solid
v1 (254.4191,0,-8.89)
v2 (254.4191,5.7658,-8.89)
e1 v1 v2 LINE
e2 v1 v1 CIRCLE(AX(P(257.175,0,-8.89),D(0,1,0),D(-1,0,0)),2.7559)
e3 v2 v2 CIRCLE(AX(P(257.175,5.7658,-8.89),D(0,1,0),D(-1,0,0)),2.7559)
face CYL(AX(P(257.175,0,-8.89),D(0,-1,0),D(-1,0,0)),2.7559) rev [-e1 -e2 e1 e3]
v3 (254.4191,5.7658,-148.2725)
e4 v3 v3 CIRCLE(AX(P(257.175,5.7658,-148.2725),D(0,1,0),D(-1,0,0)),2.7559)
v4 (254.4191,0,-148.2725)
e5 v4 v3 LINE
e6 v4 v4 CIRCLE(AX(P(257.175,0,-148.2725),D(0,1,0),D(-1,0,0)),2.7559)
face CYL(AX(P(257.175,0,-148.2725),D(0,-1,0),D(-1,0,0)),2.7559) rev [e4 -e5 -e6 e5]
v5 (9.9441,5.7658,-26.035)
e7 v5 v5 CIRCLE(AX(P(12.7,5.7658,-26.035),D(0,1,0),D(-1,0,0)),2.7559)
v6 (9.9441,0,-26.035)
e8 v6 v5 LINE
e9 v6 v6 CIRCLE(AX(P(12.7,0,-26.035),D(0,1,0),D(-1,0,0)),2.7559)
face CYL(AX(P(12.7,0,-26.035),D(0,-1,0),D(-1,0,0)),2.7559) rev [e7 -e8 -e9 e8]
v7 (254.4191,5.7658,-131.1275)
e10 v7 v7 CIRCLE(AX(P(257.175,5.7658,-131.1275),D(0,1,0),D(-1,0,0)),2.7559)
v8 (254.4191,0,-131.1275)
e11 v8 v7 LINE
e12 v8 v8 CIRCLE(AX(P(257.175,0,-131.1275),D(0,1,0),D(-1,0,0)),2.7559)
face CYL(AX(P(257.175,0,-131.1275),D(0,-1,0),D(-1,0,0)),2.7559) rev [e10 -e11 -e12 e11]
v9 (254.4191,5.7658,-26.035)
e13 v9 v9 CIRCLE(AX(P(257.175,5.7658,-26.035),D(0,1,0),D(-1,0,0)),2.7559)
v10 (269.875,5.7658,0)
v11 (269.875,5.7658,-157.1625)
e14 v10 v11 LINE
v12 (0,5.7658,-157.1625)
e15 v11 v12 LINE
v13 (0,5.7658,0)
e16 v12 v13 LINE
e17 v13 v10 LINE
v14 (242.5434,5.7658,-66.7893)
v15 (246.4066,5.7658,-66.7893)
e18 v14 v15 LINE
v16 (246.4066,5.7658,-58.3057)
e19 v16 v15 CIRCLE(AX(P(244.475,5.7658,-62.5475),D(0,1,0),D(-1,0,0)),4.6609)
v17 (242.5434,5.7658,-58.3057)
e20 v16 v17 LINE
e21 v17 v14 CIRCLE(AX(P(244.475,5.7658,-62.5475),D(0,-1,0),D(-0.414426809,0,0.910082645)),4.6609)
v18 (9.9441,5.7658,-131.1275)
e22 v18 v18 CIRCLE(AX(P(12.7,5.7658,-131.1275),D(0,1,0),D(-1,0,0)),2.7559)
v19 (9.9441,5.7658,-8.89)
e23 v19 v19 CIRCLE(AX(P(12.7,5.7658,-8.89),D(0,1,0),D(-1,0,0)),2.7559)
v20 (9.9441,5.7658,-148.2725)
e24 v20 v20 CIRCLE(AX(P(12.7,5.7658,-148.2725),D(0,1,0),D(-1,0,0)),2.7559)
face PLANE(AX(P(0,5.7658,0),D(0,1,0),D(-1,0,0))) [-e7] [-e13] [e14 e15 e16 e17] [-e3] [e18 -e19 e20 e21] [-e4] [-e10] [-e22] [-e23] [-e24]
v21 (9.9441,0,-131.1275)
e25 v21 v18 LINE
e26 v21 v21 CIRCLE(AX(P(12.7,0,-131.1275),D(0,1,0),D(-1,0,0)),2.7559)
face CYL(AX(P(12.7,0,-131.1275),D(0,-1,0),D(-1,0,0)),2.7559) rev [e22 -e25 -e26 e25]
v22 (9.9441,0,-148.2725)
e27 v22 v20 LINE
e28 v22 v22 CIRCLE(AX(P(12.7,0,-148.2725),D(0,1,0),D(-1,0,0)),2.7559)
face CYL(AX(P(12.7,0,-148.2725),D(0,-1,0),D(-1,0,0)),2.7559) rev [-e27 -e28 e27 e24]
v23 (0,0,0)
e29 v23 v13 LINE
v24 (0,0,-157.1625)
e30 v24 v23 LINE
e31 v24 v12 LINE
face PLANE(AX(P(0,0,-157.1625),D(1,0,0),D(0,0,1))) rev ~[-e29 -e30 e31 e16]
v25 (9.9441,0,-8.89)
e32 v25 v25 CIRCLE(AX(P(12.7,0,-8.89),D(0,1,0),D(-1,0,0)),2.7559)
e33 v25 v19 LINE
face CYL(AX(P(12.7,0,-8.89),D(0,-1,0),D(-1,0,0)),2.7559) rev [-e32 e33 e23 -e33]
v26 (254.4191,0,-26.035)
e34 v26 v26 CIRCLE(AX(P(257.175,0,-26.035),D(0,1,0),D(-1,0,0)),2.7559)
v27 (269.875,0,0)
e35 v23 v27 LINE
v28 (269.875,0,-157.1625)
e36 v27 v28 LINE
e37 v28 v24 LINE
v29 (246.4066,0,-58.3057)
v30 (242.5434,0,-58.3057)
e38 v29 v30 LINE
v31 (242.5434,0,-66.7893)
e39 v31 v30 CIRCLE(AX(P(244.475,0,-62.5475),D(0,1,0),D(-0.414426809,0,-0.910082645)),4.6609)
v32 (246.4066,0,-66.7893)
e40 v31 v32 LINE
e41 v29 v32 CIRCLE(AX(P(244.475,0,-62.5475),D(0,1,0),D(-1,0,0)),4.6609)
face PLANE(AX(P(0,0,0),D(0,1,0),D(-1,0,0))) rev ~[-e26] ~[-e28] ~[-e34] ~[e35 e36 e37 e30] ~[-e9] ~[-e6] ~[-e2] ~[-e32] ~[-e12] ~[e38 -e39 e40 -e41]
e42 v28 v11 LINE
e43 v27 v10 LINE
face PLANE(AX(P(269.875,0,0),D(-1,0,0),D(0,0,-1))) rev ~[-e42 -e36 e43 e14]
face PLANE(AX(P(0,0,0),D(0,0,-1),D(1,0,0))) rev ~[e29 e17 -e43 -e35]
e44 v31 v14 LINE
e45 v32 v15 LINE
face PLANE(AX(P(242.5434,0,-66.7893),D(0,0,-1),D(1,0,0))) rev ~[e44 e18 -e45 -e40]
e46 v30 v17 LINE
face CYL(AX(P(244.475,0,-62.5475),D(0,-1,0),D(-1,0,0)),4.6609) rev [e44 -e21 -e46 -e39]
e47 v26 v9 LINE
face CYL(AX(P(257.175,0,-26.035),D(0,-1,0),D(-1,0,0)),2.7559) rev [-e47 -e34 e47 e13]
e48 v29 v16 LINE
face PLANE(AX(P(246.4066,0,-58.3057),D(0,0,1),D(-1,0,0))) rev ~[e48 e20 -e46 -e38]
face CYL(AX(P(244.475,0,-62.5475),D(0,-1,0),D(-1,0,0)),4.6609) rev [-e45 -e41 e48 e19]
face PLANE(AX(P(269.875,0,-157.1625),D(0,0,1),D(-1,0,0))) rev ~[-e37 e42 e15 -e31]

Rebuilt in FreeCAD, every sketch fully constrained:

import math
import FreeCAD as App
import Part
import Sketcher
from FreeCAD import Vector
Q = App.Units.Quantity


def add_polygon(sketch, points):
    """Adds a closed chain of lines whose ends are joined by coincident constraints."""
    first, n = sketch.GeometryCount, len(points)
    for a, b in zip(points, points[1:] + points[:1]):
        sketch.addGeometry(Part.LineSegment(App.Vector(*a, 0), App.Vector(*b, 0)), False)
    for i in range(n):
        sketch.addConstraint(Sketcher.Constraint("Coincident", first + i, 2, first + (i + 1) % n, 1))

doc = App.newDocument("Part")
body = doc.addObject("PartDesign::Body", "Body")

sketch1 = body.newObject("Sketcher::SketchObject", "Sketch")
sketch1.AttachmentSupport = (doc.getObject("XZ_Plane"), [""])
sketch1.MapMode = "FlatFace"
add_polygon(sketch1, [(0, -157.2), (0, 0), (269.9, 0), (269.9, -157.2)])
sketch1.addGeometry(Part.Circle(Vector(257.2, -148.3, 0), Vector(0, 0, 1), 2.8), False)
sketch1.addGeometry(Part.Circle(Vector(257.2, -131.1, 0), Vector(0, 0, 1), 2.8), False)
sketch1.addGeometry(Part.Circle(Vector(12.7, -148.3, 0), Vector(0, 0, 1), 2.8), False)
sketch1.addGeometry(Part.Circle(Vector(12.7, -131.1, 0), Vector(0, 0, 1), 2.8), False)
sketch1.addGeometry(Part.ArcOfCircle(Part.Circle(Vector(244.5, -62.5, 0), Vector(0, 0, 1), 4.7), math.radians(114), math.radians(246)), False)
sketch1.addGeometry(Part.LineSegment(Vector(242.5, -66.8, 0), Vector(246.4, -66.8, 0)), False)
sketch1.addGeometry(Part.ArcOfCircle(Part.Circle(Vector(244.5, -62.5, 0), Vector(0, 0, 1), 4.7), math.radians(-66), math.radians(66)), False)
sketch1.addGeometry(Part.LineSegment(Vector(246.4, -58.3, 0), Vector(242.5, -58.3, 0)), False)
sketch1.addGeometry(Part.Circle(Vector(257.2, -26, 0), Vector(0, 0, 1), 2.8), False)
sketch1.addGeometry(Part.Circle(Vector(257.2, -8.9, 0), Vector(0, 0, 1), 2.8), False)
sketch1.addGeometry(Part.Circle(Vector(12.7, -26, 0), Vector(0, 0, 1), 2.8), False)
sketch1.addGeometry(Part.Circle(Vector(12.7, -8.9, 0), Vector(0, 0, 1), 2.8), False)
sketch1.addConstraint(Sketcher.Constraint("Coincident", 8, 2, 9, 1))
sketch1.addConstraint(Sketcher.Constraint("Coincident", 9, 2, 10, 1))
sketch1.addConstraint(Sketcher.Constraint("Coincident", 10, 2, 11, 1))
sketch1.addConstraint(Sketcher.Constraint("Coincident", 11, 2, 8, 1))
sketch1.addConstraint(Sketcher.Constraint("Vertical", 0))
sketch1.addConstraint(Sketcher.Constraint("Horizontal", 1))
sketch1.addConstraint(Sketcher.Constraint("Vertical", 2))
sketch1.addConstraint(Sketcher.Constraint("Horizontal", 3))
sketch1.addConstraint(Sketcher.Constraint("Horizontal", 9))
sketch1.addConstraint(Sketcher.Constraint("Horizontal", 11))
sketch1.addConstraint(Sketcher.Constraint("Coincident", 0, 2, -1, 1))
sketch1.addConstraint(Sketcher.Constraint("Coincident", 10, 3, 8, 3))
sketch1.addConstraint(Sketcher.Constraint("Equal", 4, 5))
sketch1.addConstraint(Sketcher.Constraint("Equal", 5, 6))
sketch1.addConstraint(Sketcher.Constraint("Equal", 6, 7))
sketch1.addConstraint(Sketcher.Constraint("Equal", 8, 10))
sketch1.addConstraint(Sketcher.Constraint("Equal", 7, 12))
sketch1.addConstraint(Sketcher.Constraint("Equal", 12, 13))
sketch1.addConstraint(Sketcher.Constraint("Equal", 13, 14))
sketch1.addConstraint(Sketcher.Constraint("Equal", 14, 15))
sketch1.addConstraint(Sketcher.Constraint("Horizontal", 4, 3, 6, 3))
sketch1.addConstraint(Sketcher.Constraint("Horizontal", 5, 3, 7, 3))
sketch1.addConstraint(Sketcher.Constraint("Horizontal", 12, 3, 14, 3))
sketch1.addConstraint(Sketcher.Constraint("Horizontal", 13, 3, 15, 3))
sketch1.addConstraint(Sketcher.Constraint("Vertical", 4, 3, 5, 3))
sketch1.addConstraint(Sketcher.Constraint("Vertical", 6, 3, 7, 3))
sketch1.addConstraint(Sketcher.Constraint("Vertical", 5, 3, 12, 3))
sketch1.addConstraint(Sketcher.Constraint("Vertical", 12, 3, 13, 3))
sketch1.addConstraint(Sketcher.Constraint("Vertical", 7, 3, 14, 3))
sketch1.addConstraint(Sketcher.Constraint("Vertical", 14, 3, 15, 3))
sketch1.addConstraint(Sketcher.Constraint("Vertical", 9, 2, 10, 2))
sketch1.addConstraint(Sketcher.Constraint("Diameter", 4, Q("0.217 in")))
sketch1.addConstraint(Sketcher.Constraint("DistanceX", 8, 3, 1, 2, Q("1 in")))
sketch1.addConstraint(Sketcher.Constraint("DistanceX", -1, 1, 6, 3, Q("0.5 in")))
sketch1.addConstraint(Sketcher.Constraint("Radius", 8, Q("0.1835 in")))
sketch1.addConstraint(Sketcher.Constraint("DistanceX", 8, 3, 5, 3, Q("0.5 in")))
sketch1.addConstraint(Sketcher.Constraint("DistanceX", 1, 1, 1, 2, Q("10.625 in")))
sketch1.addConstraint(Sketcher.Constraint("DistanceY", 0, 1, 0, 2, Q("6.1875 in")))
sketch1.addConstraint(Sketcher.Constraint("DistanceY", 13, 3, -1, 1, Q("0.35 in")))
sketch1.addConstraint(Sketcher.Constraint("DistanceY", 2, 2, 4, 3, Q("0.35 in")))
sketch1.addConstraint(Sketcher.Constraint("DistanceY", 4, 3, 5, 3, Q("0.675 in")))
sketch1.addConstraint(Sketcher.Constraint("DistanceY", 12, 3, 13, 3, Q("0.675 in")))
sketch1.addConstraint(Sketcher.Constraint("DistanceY", 2, 2, 8, 3, Q("3.725 in")))
sketch1.addConstraint(Sketcher.Constraint("DistanceY", 8, 2, 8, 3, Q("0.167 in")))
pad1 = body.newObject("PartDesign::Pad", "Pad")
pad1.Profile = sketch1
pad1.Length = Q("0.227 in")
pad1.Reversed = True

doc.recompute()
